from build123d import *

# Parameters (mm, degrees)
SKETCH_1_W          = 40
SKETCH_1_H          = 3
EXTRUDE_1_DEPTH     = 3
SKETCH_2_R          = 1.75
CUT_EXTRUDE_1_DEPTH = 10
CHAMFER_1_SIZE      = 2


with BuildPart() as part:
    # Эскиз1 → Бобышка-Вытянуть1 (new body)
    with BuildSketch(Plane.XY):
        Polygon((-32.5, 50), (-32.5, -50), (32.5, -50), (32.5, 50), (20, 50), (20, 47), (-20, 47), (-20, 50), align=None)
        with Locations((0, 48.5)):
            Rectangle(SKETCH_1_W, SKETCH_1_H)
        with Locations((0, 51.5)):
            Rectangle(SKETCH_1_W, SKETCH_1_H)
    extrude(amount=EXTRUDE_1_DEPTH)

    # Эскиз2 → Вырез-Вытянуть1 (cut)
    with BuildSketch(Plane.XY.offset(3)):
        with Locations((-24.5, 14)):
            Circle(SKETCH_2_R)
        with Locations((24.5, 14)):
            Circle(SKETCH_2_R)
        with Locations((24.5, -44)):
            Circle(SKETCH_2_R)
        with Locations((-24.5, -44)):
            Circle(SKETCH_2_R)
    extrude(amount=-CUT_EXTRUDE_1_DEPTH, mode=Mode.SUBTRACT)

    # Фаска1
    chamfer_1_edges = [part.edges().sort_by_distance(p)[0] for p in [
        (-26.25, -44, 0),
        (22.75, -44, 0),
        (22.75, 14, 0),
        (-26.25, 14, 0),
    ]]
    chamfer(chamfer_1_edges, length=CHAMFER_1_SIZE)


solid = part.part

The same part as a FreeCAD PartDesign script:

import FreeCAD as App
import Part
import Sketcher
from FreeCAD import Vector
Q = App.Units.Quantity


def edges_at(feature, points):
    """Names of the edges that pass closest to the given points."""
    edges = feature.Shape.Edges
    near = lambda p: min(range(len(edges)), key=lambda i: edges[i].distToShape(Part.Vertex(*p))[0])
    return sorted({f"Edge{near(p) + 1}" for p in points})


def add_polygon(sketch, points):
    """Adds a closed chain of lines whose ends are joined by coincident constraints."""
    first, n = sketch.GeometryCount, len(points)
    for a, b in zip(points, points[1:] + points[:1]):
        sketch.addGeometry(Part.LineSegment(App.Vector(*a, 0), App.Vector(*b, 0)), False)
    for i in range(n):
        sketch.addConstraint(Sketcher.Constraint("Coincident", first + i, 2, first + (i + 1) % n, 1))

doc = App.newDocument("Part")
body = doc.addObject("PartDesign::Body", "Body")

# Sketch on XY plane
sketch1 = doc.addObject("Sketcher::SketchObject", "Sketch")
body.addObject(sketch1)
sketch1.AttachmentSupport = (doc.XY_Plane, [""])
sketch1.MapMode = "FlatFace"
add_polygon(sketch1, [(-32.5, 50), (-32.5, -50), (32.5, -50), (32.5, 50), (20, 50), (20, 53), (-20, 53), (-20, 50)])  # lines 0-7
sketch1.addConstraint([
    Sketcher.Constraint("Vertical", 0),
    Sketcher.Constraint("Horizontal", 1),
    Sketcher.Constraint("Vertical", 2),
    Sketcher.Constraint("Horizontal", 3),
    Sketcher.Constraint("Vertical", 4),
    Sketcher.Constraint("Horizontal", 5),
    Sketcher.Constraint("Vertical", 6),
    Sketcher.Constraint("Horizontal", 7),
    Sketcher.Constraint("Symmetric", 0, 2, 2, 2, -1, 1),
    Sketcher.Constraint("Symmetric", 3, 2, 6, 2, -2),
    Sketcher.Constraint("DistanceX", 1, 1, 1, 2, Q("65 mm")),
    Sketcher.Constraint("DistanceX", 5, 2, 5, 1, Q("40 mm")),
    Sketcher.Constraint("DistanceY", 0, 2, 0, 1, Q("100 mm")),
    Sketcher.Constraint("DistanceY", 4, 1, 4, 2, Q("3 mm")),
])
pad1 = doc.addObject("PartDesign::Pad", "Pad")
body.addObject(pad1)
pad1.Profile = sketch1
pad1.Length = 3

# Sketch on XY plane
sketch2 = doc.addObject("Sketcher::SketchObject", "Sketch001")
body.addObject(sketch2)
sketch2.AttachmentSupport = (doc.XY_Plane, [""])
sketch2.MapMode = "FlatFace"
sketch2.AttachmentOffset = App.Placement(Vector(0, 0, 3), App.Rotation())
sketch2.addGeometry([
    Part.Circle(Vector(-24.5, 14, 0), Vector(0, 0, 1), 1.8),
    Part.Circle(Vector(24.5, 14, 0), Vector(0, 0, 1), 1.8),
    Part.Circle(Vector(24.5, -44, 0), Vector(0, 0, 1), 1.8),
    Part.Circle(Vector(-24.5, -44, 0), Vector(0, 0, 1), 1.8),
], False)
sketch2.addConstraint([
    Sketcher.Constraint("Equal", 0, 1),
    Sketcher.Constraint("Equal", 1, 2),
    Sketcher.Constraint("Equal", 2, 3),
    Sketcher.Constraint("Symmetric", 0, 3, 1, 3, -2),
    Sketcher.Constraint("Symmetric", 2, 3, 3, 3, -2),
    Sketcher.Constraint("Vertical", 1, 3, 2, 3),
    Sketcher.Constraint("Diameter", 0, Q("3.5 mm")),
    Sketcher.Constraint("DistanceY", -1, 1, 0, 3, Q("14 mm")),
    Sketcher.Constraint("DistanceY", 2, 3, -1, 1, Q("44 mm")),
    Sketcher.Constraint("DistanceX", 0, 3, 1, 3, Q("49 mm")),
])
pocket1 = doc.addObject("PartDesign::Pocket", "Pocket")
body.addObject(pocket1)
pocket1.Profile = sketch2
pocket1.Length = 10
doc.recompute()

chamfer = doc.addObject("PartDesign::Chamfer", "Chamfer")
body.addObject(chamfer)
chamfer.Base = (pocket1, edges_at(pocket1, [
    (-26.25, -44, 0),
    (22.75, -44, 0),
    (22.75, 14, 0),
    (-26.25, 14, 0),
]))
chamfer.Size = 2

doc.recompute()
